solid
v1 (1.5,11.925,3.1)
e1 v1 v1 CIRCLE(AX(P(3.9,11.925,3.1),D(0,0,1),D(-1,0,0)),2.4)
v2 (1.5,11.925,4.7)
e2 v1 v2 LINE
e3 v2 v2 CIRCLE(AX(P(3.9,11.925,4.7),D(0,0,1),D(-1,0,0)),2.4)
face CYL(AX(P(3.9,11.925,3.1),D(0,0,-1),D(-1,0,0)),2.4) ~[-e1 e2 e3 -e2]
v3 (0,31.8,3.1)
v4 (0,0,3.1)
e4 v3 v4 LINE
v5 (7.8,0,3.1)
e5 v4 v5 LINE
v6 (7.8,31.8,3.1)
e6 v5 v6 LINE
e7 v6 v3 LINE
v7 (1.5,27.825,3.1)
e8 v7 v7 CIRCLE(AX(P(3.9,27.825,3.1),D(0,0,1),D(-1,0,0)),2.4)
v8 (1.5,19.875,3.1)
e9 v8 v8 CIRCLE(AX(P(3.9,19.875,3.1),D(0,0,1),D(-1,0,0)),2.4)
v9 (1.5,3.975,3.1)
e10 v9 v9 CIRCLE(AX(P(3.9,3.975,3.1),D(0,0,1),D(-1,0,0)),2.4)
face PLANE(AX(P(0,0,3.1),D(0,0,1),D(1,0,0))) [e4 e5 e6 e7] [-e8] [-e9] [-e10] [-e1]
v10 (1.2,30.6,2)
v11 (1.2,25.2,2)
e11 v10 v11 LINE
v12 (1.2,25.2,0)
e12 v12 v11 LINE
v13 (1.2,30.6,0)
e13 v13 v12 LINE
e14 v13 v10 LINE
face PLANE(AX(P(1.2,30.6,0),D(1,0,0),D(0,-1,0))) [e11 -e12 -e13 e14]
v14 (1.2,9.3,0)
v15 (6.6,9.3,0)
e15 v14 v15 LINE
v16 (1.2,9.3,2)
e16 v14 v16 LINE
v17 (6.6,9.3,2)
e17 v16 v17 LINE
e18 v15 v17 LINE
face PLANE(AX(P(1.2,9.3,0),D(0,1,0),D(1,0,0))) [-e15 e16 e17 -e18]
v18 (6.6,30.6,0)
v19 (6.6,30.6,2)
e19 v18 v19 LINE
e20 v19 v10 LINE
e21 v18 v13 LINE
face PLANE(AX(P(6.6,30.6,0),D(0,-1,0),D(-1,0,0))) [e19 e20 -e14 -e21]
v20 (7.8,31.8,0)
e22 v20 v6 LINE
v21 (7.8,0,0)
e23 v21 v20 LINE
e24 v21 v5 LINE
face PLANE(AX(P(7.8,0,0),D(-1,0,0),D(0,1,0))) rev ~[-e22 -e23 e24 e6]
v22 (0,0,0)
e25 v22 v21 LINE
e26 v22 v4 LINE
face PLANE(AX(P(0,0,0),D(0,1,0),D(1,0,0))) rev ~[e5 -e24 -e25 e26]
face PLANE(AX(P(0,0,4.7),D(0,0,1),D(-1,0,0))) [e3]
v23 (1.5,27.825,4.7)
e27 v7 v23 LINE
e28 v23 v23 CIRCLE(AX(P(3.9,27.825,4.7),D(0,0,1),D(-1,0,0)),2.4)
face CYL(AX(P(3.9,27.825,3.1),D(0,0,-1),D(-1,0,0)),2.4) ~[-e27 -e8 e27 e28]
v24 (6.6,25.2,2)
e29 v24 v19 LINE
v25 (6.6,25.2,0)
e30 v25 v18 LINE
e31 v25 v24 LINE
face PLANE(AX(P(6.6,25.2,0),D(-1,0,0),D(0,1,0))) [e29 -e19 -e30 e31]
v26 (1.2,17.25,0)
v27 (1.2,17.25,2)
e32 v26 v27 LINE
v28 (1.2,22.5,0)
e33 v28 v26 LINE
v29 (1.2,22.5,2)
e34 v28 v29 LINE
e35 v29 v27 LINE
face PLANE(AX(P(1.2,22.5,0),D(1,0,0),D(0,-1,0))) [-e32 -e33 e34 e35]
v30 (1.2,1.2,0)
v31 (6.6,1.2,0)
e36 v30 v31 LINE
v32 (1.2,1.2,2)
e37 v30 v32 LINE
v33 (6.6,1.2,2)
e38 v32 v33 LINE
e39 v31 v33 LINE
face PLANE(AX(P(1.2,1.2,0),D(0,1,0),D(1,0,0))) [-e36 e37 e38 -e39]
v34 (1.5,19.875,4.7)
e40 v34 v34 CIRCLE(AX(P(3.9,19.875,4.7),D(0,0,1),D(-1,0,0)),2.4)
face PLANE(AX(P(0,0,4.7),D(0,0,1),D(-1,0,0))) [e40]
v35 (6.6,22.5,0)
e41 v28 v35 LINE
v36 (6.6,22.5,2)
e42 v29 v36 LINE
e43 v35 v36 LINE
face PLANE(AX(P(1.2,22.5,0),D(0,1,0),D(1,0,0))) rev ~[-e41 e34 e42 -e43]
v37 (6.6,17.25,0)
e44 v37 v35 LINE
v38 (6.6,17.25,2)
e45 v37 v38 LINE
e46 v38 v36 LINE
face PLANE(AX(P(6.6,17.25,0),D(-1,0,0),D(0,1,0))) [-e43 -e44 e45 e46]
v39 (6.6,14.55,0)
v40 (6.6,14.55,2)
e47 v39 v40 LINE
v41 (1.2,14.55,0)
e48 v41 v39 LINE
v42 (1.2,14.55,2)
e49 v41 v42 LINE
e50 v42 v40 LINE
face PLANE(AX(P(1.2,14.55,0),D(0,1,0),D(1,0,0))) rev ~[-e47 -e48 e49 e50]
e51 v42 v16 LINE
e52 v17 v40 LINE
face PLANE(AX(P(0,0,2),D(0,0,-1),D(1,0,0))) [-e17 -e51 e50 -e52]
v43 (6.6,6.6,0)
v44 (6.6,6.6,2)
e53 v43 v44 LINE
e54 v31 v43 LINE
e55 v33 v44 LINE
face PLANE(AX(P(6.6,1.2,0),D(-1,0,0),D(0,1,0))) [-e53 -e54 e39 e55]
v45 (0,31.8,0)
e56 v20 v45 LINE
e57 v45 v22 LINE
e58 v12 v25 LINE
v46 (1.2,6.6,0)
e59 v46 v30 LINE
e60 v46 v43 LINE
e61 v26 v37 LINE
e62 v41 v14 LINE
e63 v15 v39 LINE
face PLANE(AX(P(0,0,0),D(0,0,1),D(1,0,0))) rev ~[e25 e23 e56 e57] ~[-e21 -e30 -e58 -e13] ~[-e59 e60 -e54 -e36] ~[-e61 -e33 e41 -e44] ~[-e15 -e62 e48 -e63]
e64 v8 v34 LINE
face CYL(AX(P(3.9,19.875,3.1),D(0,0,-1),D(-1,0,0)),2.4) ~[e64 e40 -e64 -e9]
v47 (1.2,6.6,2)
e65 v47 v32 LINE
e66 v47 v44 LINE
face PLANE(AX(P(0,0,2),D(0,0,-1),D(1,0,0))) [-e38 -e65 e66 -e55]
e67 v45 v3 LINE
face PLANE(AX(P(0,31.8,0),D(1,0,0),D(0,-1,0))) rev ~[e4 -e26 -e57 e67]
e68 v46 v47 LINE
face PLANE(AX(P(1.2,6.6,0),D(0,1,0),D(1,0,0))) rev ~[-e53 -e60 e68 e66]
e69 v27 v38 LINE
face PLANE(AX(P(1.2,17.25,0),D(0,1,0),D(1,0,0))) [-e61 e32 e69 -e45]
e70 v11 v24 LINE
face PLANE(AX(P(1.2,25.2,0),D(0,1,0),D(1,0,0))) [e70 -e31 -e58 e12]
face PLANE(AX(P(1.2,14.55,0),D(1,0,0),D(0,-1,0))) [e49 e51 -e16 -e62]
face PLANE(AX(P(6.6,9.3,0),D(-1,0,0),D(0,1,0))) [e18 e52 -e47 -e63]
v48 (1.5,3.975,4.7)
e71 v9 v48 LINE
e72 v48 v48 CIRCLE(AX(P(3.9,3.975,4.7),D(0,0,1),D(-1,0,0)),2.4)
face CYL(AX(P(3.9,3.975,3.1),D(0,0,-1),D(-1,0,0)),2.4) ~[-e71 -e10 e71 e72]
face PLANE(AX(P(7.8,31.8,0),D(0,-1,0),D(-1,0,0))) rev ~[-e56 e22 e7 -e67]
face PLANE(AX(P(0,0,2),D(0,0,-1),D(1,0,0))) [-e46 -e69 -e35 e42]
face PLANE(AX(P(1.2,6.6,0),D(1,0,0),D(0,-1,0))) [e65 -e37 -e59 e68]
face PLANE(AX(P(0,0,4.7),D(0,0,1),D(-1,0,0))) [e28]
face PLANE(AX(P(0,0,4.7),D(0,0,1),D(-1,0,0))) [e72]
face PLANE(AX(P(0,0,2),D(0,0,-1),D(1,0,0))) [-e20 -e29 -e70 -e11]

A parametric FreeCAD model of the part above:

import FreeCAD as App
import Part
import Sketcher

V = App.Vector

doc = App.newDocument("Part")
body = doc.addObject("PartDesign::Body", "Body")

# Sketch on XY plane
sketch1 = body.newObject("Sketcher::SketchObject", "Sketch")
sketch1.AttachmentSupport = (doc.getObject("XY_Plane"), [""])
sketch1.MapMode = "FlatFace"
sketch1.addGeometry(Part.LineSegment(V(0, 32, 0), V(0, 0, 0)), False)
sketch1.addGeometry(Part.LineSegment(V(0, 0, 0), V(8, 0, 0)), False)
sketch1.addGeometry(Part.LineSegment(V(8, 0, 0), V(8, 32, 0)), False)
sketch1.addGeometry(Part.LineSegment(V(8, 32, 0), V(0, 32, 0)), False)
sketch1.addConstraint(Sketcher.Constraint("Coincident", 0, 2, 1, 1))
sketch1.addConstraint(Sketcher.Constraint("Coincident", 1, 2, 2, 1))
sketch1.addConstraint(Sketcher.Constraint("Coincident", 2, 2, 3, 1))
sketch1.addConstraint(Sketcher.Constraint("Coincident", 3, 2, 0, 1))
sketch1.addConstraint(Sketcher.Constraint("Vertical", 0))
sketch1.addConstraint(Sketcher.Constraint("Horizontal", 1))
sketch1.addConstraint(Sketcher.Constraint("Vertical", 2))
sketch1.addConstraint(Sketcher.Constraint("Horizontal", 3))
sketch1.addConstraint(Sketcher.Constraint("Coincident", 0, 2, -1, 1))
sketch1.addConstraint(Sketcher.Constraint("DistanceX", 1, 1, 1, 2, 7.8))
sketch1.addConstraint(Sketcher.Constraint("DistanceY", 0, 2, 0, 1, 31.8))
pad1 = body.newObject("PartDesign::Pad", "Pad")
pad1.Profile = sketch1
pad1.Length = 3.1

# Sketch on XY plane
sketch2 = body.newObject("Sketcher::SketchObject", "Sketch001")
sketch2.AttachmentSupport = (doc.getObject("XY_Plane"), [""])
sketch2.MapMode = "FlatFace"
sketch2.AttachmentOffset = App.Placement(V(0, 0, 3.1), App.Rotation())
sketch2.addGeometry(Part.Circle(V(3.9, 27.8, 0), V(0, 0, 1), 2.4), False)
sketch2.addGeometry(Part.Circle(V(3.9, 19.9, 0), V(0, 0, 1), 2.4), False)
sketch2.addGeometry(Part.Circle(V(3.9, 11.9, 0), V(0, 0, 1), 2.4), False)
sketch2.addGeometry(Part.Circle(V(3.9, 4, 0), V(0, 0, 1), 2.4), False)
sketch2.addConstraint(Sketcher.Constraint("Equal", 0, 1))
sketch2.addConstraint(Sketcher.Constraint("Equal", 1, 2))
sketch2.addConstraint(Sketcher.Constraint("Equal", 2, 3))
sketch2.addConstraint(Sketcher.Constraint("Vertical", 0, 3, 1, 3))
sketch2.addConstraint(Sketcher.Constraint("Vertical", 1, 3, 2, 3))
sketch2.addConstraint(Sketcher.Constraint("Vertical", 2, 3, 3, 3))
sketch2.addConstraint(Sketcher.Constraint("Diameter", 0, 4.8))
sketch2.addConstraint(Sketcher.Constraint("DistanceX", -1, 1, 0, 3, 3.9))
sketch2.addConstraint(Sketcher.Constraint("DistanceY", 1, 3, 0, 3, 7.95))
sketch2.addConstraint(Sketcher.Constraint("DistanceY", 2, 3, 1, 3, 7.95))
sketch2.addConstraint(Sketcher.Constraint("DistanceY", 3, 3, 2, 3, 7.95))
sketch2.addConstraint(Sketcher.Constraint("DistanceY", -1, 1, 3, 3, 3.975))
pad2 = body.newObject("PartDesign::Pad", "Pad001")
pad2.Profile = sketch2
pad2.Length = 1.6

# Sketch on XY plane
sketch3 = body.newObject("Sketcher::SketchObject", "Sketch002")
sketch3.AttachmentSupport = (doc.getObject("XY_Plane"), [""])
sketch3.MapMode = "FlatFace"
sketch3.addGeometry(Part.LineSegment(V(7, 1, 0), V(1, 1, 0)), False)
sketch3.addGeometry(Part.LineSegment(V(1, 1, 0), V(1, 7, 0)), False)
sketch3.addGeometry(Part.LineSegment(V(1, 7, 0), V(7, 7, 0)), False)
sketch3.addGeometry(Part.LineSegment(V(7, 7, 0), V(7, 1, 0)), False)
sketch3.addGeometry(Part.LineSegment(V(7, 9, 0), V(1, 9, 0)), False)
sketch3.addGeometry(Part.LineSegment(V(1, 9, 0), V(1, 15, 0)), False)
sketch3.addGeometry(Part.LineSegment(V(1, 15, 0), V(7, 15, 0)), False)
sketch3.addGeometry(Part.LineSegment(V(7, 15, 0), V(7, 9, 0)), False)
sketch3.addGeometry(Part.LineSegment(V(7, 17, 0), V(1, 17, 0)), False)
sketch3.addGeometry(Part.LineSegment(V(1, 17, 0), V(1, 22, 0)), False)
sketch3.addGeometry(Part.LineSegment(V(1, 22, 0), V(7, 22, 0)), False)
sketch3.addGeometry(Part.LineSegment(V(7, 22, 0), V(7, 17, 0)), False)
sketch3.addGeometry(Part.LineSegment(V(7, 25, 0), V(1, 25, 0)), False)
sketch3.addGeometry(Part.LineSegment(V(1, 25, 0), V(1, 31, 0)), False)
sketch3.addGeometry(Part.LineSegment(V(1, 31, 0), V(7, 31, 0)), False)
sketch3.addGeometry(Part.LineSegment(V(7, 31, 0), V(7, 25, 0)), False)
sketch3.addConstraint(Sketcher.Constraint("Coincident", 0, 2, 1, 1))
sketch3.addConstraint(Sketcher.Constraint("Coincident", 1, 2, 2, 1))
sketch3.addConstraint(Sketcher.Constraint("Coincident", 2, 2, 3, 1))
sketch3.addConstraint(Sketcher.Constraint("Coincident", 3, 2, 0, 1))
sketch3.addConstraint(Sketcher.Constraint("Coincident", 4, 2, 5, 1))
sketch3.addConstraint(Sketcher.Constraint("Coincident", 5, 2, 6, 1))
sketch3.addConstraint(Sketcher.Constraint("Coincident", 6, 2, 7, 1))
sketch3.addConstraint(Sketcher.Constraint("Coincident", 7, 2, 4, 1))
sketch3.addConstraint(Sketcher.Constraint("Coincident", 8, 2, 9, 1))
sketch3.addConstraint(Sketcher.Constraint("Coincident", 9, 2, 10, 1))
sketch3.addConstraint(Sketcher.Constraint("Coincident", 10, 2, 11, 1))
sketch3.addConstraint(Sketcher.Constraint("Coincident", 11, 2, 8, 1))
sketch3.addConstraint(Sketcher.Constraint("Coincident", 12, 2, 13, 1))
sketch3.addConstraint(Sketcher.Constraint("Coincident", 13, 2, 14, 1))
sketch3.addConstraint(Sketcher.Constraint("Coincident", 14, 2, 15, 1))
sketch3.addConstraint(Sketcher.Constraint("Coincident", 15, 2, 12, 1))
sketch3.addConstraint(Sketcher.Constraint("Horizontal", 0))
sketch3.addConstraint(Sketcher.Constraint("Vertical", 1))
sketch3.addConstraint(Sketcher.Constraint("Horizontal", 2))
sketch3.addConstraint(Sketcher.Constraint("Vertical", 3))
sketch3.addConstraint(Sketcher.Constraint("Horizontal", 4))
sketch3.addConstraint(Sketcher.Constraint("Vertical", 5))
sketch3.addConstraint(Sketcher.Constraint("Horizontal", 6))
sketch3.addConstraint(Sketcher.Constraint("Vertical", 7))
sketch3.addConstraint(Sketcher.Constraint("Horizontal", 8))
sketch3.addConstraint(Sketcher.Constraint("Vertical", 9))
sketch3.addConstraint(Sketcher.Constraint("Horizontal", 10))
sketch3.addConstraint(Sketcher.Constraint("Vertical", 11))
sketch3.addConstraint(Sketcher.Constraint("Horizontal", 12))
sketch3.addConstraint(Sketcher.Constraint("Vertical", 13))
sketch3.addConstraint(Sketcher.Constraint("Horizontal", 14))
sketch3.addConstraint(Sketcher.Constraint("Vertical", 15))
sketch3.addConstraint(Sketcher.Constraint("Vertical", 1, 2, 4, 2))
sketch3.addConstraint(Sketcher.Constraint("Vertical", 3, 2, 6, 2))
sketch3.addConstraint(Sketcher.Constraint("Vertical", 5, 2, 8, 2))
sketch3.addConstraint(Sketcher.Constraint("Vertical", 7, 2, 10, 2))
sketch3.addConstraint(Sketcher.Constraint("Vertical", 9, 2, 12, 2))
sketch3.addConstraint(Sketcher.Constraint("Vertical", 11, 2, 14, 2))
sketch3.addConstraint(Sketcher.Constraint("Equal", 14, 1))
sketch3.addConstraint(Sketcher.Constraint("Equal", 7, 9))
sketch3.addConstraint(Sketcher.Constraint("Equal", 3, 13))
sketch3.addConstraint(Sketcher.Constraint("DistanceX", -1, 1, 0, 2, 1.2))
sketch3.addConstraint(Sketcher.Constraint("DistanceY", -1, 1, 0, 2, 1.2))
sketch3.addConstraint(Sketcher.Constraint("DistanceY", 1, 2, 4, 2, 2.7))
sketch3.addConstraint(Sketcher.Constraint("DistanceY", 5, 2, 8, 2, 2.7))
sketch3.addConstraint(Sketcher.Constraint("DistanceY", 9, 2, 12, 2, 2.7))
sketch3.addConstraint(Sketcher.Constraint("DistanceY", 1, 2, 5, 2, 7.95))
sketch3.addConstraint(Sketcher.Constraint("DistanceX", 0, 2, 0, 1, 5.4))
pocket1 = body.newObject("PartDesign::Pocket", "Pocket")
pocket1.Profile = sketch3
pocket1.Length = 2
pocket1.Reversed = True

doc.recompute()
